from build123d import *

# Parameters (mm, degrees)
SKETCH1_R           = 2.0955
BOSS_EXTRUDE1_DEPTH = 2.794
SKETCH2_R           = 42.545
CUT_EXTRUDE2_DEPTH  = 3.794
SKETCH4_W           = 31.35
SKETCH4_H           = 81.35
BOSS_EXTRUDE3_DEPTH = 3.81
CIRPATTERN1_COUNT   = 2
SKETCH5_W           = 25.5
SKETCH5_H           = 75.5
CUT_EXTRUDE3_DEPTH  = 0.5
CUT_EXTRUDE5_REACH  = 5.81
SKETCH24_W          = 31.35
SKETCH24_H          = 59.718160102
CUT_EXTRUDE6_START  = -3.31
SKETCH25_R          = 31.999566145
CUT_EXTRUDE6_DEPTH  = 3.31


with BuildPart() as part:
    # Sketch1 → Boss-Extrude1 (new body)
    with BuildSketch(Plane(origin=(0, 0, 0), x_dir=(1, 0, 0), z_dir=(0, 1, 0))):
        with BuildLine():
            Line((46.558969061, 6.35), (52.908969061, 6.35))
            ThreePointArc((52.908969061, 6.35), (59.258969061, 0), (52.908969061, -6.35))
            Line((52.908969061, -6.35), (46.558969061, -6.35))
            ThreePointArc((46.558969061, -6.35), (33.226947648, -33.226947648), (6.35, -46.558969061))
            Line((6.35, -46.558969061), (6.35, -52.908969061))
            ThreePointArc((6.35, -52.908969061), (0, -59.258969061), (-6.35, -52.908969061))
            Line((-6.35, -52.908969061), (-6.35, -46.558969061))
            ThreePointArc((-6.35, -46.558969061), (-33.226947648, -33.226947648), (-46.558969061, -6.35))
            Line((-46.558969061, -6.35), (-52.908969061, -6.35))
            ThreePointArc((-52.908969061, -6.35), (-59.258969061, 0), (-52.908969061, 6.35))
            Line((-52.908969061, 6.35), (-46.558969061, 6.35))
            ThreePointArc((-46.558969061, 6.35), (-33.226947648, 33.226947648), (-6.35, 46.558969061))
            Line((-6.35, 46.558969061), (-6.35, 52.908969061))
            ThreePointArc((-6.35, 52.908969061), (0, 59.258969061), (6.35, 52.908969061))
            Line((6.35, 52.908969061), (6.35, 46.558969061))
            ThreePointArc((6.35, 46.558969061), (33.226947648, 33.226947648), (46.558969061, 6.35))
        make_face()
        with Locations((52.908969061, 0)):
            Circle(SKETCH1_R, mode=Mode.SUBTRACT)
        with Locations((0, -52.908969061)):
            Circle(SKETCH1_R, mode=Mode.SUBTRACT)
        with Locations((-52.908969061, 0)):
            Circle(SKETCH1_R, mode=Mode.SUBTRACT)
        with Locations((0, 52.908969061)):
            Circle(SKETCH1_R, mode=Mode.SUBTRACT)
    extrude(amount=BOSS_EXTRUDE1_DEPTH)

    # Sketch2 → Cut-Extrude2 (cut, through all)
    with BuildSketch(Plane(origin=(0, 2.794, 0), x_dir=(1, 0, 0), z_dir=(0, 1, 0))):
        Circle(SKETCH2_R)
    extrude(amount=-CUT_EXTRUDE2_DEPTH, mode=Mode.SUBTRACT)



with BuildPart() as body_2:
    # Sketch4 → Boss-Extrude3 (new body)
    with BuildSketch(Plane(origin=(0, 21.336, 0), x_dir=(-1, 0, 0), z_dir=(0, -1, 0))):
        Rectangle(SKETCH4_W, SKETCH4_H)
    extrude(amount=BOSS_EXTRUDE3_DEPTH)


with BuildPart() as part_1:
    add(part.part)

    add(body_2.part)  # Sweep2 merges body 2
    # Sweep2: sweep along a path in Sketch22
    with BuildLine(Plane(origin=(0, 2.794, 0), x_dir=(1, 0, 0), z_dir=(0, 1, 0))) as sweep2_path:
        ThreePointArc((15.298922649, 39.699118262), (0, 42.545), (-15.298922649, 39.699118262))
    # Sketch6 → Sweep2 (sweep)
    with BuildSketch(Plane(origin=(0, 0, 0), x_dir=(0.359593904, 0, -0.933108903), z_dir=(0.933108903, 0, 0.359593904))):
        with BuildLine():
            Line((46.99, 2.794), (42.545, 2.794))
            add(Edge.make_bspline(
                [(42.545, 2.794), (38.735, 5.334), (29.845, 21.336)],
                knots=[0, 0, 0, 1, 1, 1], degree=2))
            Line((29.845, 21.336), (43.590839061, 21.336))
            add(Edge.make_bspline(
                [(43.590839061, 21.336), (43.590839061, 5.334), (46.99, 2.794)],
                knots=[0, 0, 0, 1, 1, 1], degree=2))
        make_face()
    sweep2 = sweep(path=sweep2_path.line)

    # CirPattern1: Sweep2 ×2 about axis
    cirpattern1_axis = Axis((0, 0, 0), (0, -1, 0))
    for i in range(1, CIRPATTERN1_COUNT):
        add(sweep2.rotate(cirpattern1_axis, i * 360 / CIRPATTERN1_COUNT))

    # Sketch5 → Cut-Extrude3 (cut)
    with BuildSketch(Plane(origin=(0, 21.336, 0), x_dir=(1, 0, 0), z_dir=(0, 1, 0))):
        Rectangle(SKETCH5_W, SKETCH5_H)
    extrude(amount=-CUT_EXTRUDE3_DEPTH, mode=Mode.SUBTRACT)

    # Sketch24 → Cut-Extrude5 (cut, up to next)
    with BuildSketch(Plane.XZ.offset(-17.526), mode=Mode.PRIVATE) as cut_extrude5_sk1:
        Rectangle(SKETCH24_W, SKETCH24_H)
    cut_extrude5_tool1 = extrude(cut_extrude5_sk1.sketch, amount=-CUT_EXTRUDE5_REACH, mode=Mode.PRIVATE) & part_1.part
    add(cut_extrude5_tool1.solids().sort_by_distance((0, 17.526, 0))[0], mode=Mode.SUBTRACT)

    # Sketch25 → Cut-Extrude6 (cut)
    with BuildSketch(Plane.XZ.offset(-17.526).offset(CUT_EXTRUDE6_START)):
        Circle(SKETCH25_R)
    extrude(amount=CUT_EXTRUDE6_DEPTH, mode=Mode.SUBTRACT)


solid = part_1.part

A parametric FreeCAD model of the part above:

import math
import FreeCAD as App
import Part
import Sketcher
from FreeCAD import Vector
Q = App.Units.Quantity

doc = App.newDocument("Part")
body = doc.addObject("PartDesign::Body", "Body")

# Sketch on XZ plane
sketch1 = body.newObject("Sketcher::SketchObject", "Sketch")
sketch1.AttachmentSupport = (doc.getObject("XZ_Plane"), [""])
sketch1.MapMode = "FlatFace"
sketch1.addGeometry([
    Part.LineSegment(Vector(52.908969, -6.35, 0), Vector(46.558969, -6.35, 0)),  # 0
    Part.ArcOfCircle(Part.Circle(Vector(0, 0, 0), Vector(0, 0, 1), 46.99), math.radians(-82.233566), math.radians(-7.766434)),  # 1
    Part.LineSegment(Vector(6.35, -46.558969, 0), Vector(6.35, -52.908969, 0)),  # 2
    Part.ArcOfCircle(Part.Circle(Vector(0, -52.908969, 0), Vector(0, 0, 1), 6.35), math.radians(180), math.radians(360)),  # 3
    Part.LineSegment(Vector(-6.35, -52.908969, 0), Vector(-6.35, -46.558969, 0)),  # 4
    Part.ArcOfCircle(Part.Circle(Vector(0, 0, 0), Vector(0, 0, 1), 46.99), math.radians(-172.233566), math.radians(-97.766434)),  # 5
    Part.LineSegment(Vector(-46.558969, -6.35, 0), Vector(-52.908969, -6.35, 0)),  # 6
    Part.ArcOfCircle(Part.Circle(Vector(-52.908969, 0, 0), Vector(0, 0, 1), 6.35), math.radians(90), math.radians(270)),  # 7
    Part.LineSegment(Vector(-52.908969, 6.35, 0), Vector(-46.558969, 6.35, 0)),  # 8
    Part.ArcOfCircle(Part.Circle(Vector(0, 0, 0), Vector(0, 0, 1), 46.99), math.radians(97.766434), math.radians(172.233566)),  # 9
    Part.LineSegment(Vector(-6.35, 46.558969, 0), Vector(-6.35, 52.908969, 0)),  # 10
    Part.ArcOfCircle(Part.Circle(Vector(0, 52.908969, 0), Vector(0, 0, 1), 6.35), math.radians(0), math.radians(180)),  # 11
    Part.LineSegment(Vector(6.35, 52.908969, 0), Vector(6.35, 46.558969, 0)),  # 12
    Part.ArcOfCircle(Part.Circle(Vector(0, 0, 0), Vector(0, 0, 1), 46.99), math.radians(7.766434), math.radians(82.233566)),  # 13
    Part.LineSegment(Vector(46.558969, 6.35, 0), Vector(52.908969, 6.35, 0)),  # 14
    Part.ArcOfCircle(Part.Circle(Vector(52.908969, 0, 0), Vector(0, 0, 1), 6.35), math.radians(-90), math.radians(90)),  # 15
    Part.Circle(Vector(0, 52.908969, 0), Vector(0, 0, 1), 2.0955),  # 16
    Part.Circle(Vector(52.908969, 0, 0), Vector(0, 0, 1), 2.0955),  # 17
    Part.Circle(Vector(-52.908969, 0, 0), Vector(0, 0, 1), 2.0955),  # 18
    Part.Circle(Vector(0, -52.908969, 0), Vector(0, 0, 1), 2.0955),  # 19
], False)
sketch1.addConstraint([
    Sketcher.Constraint("Coincident", 0, 2, 1, 2),
    Sketcher.Constraint("Coincident", 1, 1, 2, 1),
    Sketcher.Constraint("Tangent", 2, 2, 3, 2),
    Sketcher.Constraint("Tangent", 3, 1, 4, 1),
    Sketcher.Constraint("Coincident", 4, 2, 5, 2),
    Sketcher.Constraint("Coincident", 5, 1, 6, 1),
    Sketcher.Constraint("Tangent", 6, 2, 7, 2),
    Sketcher.Constraint("Tangent", 7, 1, 8, 1),
    Sketcher.Constraint("Coincident", 8, 2, 9, 2),
    Sketcher.Constraint("Coincident", 9, 1, 10, 1),
    Sketcher.Constraint("Tangent", 10, 2, 11, 2),
    Sketcher.Constraint("Tangent", 11, 1, 12, 1),
    Sketcher.Constraint("Coincident", 12, 2, 13, 2),
    Sketcher.Constraint("Coincident", 13, 1, 14, 1),
    Sketcher.Constraint("Tangent", 14, 2, 15, 2),
    Sketcher.Constraint("Tangent", 15, 1, 0, 1),
    Sketcher.Constraint("Horizontal", 0),
    Sketcher.Constraint("Vertical", 2),
    Sketcher.Constraint("Vertical", 4),
    Sketcher.Constraint("Horizontal", 6),
    Sketcher.Constraint("Horizontal", 8),
    Sketcher.Constraint("Vertical", 10),
    Sketcher.Constraint("Vertical", 12),
    Sketcher.Constraint("Horizontal", 14),
    Sketcher.Constraint("Coincident", 1, 3, -1, 1),
    Sketcher.Constraint("Coincident", 5, 3, -1, 1),
    Sketcher.Constraint("Coincident", 9, 3, -1, 1),
    Sketcher.Constraint("Coincident", 13, 3, -1, 1),
    Sketcher.Constraint("Coincident", 16, 3, 11, 3),
    Sketcher.Constraint("Coincident", 17, 3, 15, 3),
    Sketcher.Constraint("Coincident", 18, 3, 7, 3),
    Sketcher.Constraint("Coincident", 19, 3, 3, 3),
    Sketcher.Constraint("Equal", 1, 5),
    Sketcher.Constraint("Equal", 3, 7),
    Sketcher.Constraint("Equal", 5, 9),
    Sketcher.Constraint("Equal", 7, 11),
    Sketcher.Constraint("Equal", 9, 13),
    Sketcher.Constraint("Equal", 11, 15),
    Sketcher.Constraint("Equal", 16, 17),
    Sketcher.Constraint("Equal", 17, 18),
    Sketcher.Constraint("Equal", 18, 19),
    Sketcher.Constraint("Symmetric", 3, 3, 11, 3, -1, 1),
    Sketcher.Constraint("Symmetric", 7, 3, 15, 3, -1, 1),
    Sketcher.Constraint("PointOnObject", 3, 3, -2),
    Sketcher.Constraint("PointOnObject", 7, 3, -1),
    Sketcher.Constraint("Equal", 14, 2),
    Sketcher.Constraint("Radius", 1, Q("1.85 in")),
    Sketcher.Constraint("Radius", 3, Q("0.25 in")),
    Sketcher.Constraint("Diameter", 16, Q("0.165 in")),
    Sketcher.Constraint("DistanceX", 0, 2, 0, 1, Q("0.25 in")),
])
pad1 = body.newObject("PartDesign::Pad", "Pad")
pad1.Profile = sketch1
pad1.Length = Q("0.11 in")
pad1.Reversed = True

# Sketch on XZ plane
sketch2 = body.newObject("Sketcher::SketchObject", "Sketch001")
sketch2.AttachmentSupport = (doc.getObject("XZ_Plane"), [""])
sketch2.MapMode = "FlatFace"
sketch2.AttachmentOffset = App.Placement(Vector(0, 0, -0.11 * 25.4), App.Rotation())
sketch2.addGeometry(Part.Circle(Vector(0, 0, 0), Vector(0, 0, 1), 42.545), False)
sketch2.addConstraint([
    Sketcher.Constraint("Coincident", 0, 3, -1, 1),
    Sketcher.Constraint("Diameter", 0, Q("3.35 in")),
])
pocket1 = body.newObject("PartDesign::Pocket", "Pocket")
pocket1.Profile = sketch2
pocket1.Type = "ThroughAll"
pocket1.Reversed = True
body2 = doc.addObject("PartDesign::Body", "Body001")

# Sketch on XZ plane
sketch3 = body2.newObject("Sketcher::SketchObject", "Sketch002")
sketch3.AttachmentSupport = (doc.getObject("XZ_Plane001"), [""])
sketch3.MapMode = "FlatFace"
sketch3.AttachmentOffset = App.Placement(Vector(0, 0, -0.84 * 25.4), App.Rotation())
sketch3.addGeometry([
    Part.LineSegment(Vector(15.675, -40.675, 0), Vector(15.675, 40.675, 0)),
    Part.LineSegment(Vector(15.675, 40.675, 0), Vector(-15.675, 40.675, 0)),
    Part.LineSegment(Vector(-15.675, 40.675, 0), Vector(-15.675, -40.675, 0)),
    Part.LineSegment(Vector(-15.675, -40.675, 0), Vector(15.675, -40.675, 0)),
], False)
sketch3.addConstraint([
    Sketcher.Constraint("Coincident", 0, 2, 1, 1),
    Sketcher.Constraint("Coincident", 1, 2, 2, 1),
    Sketcher.Constraint("Coincident", 2, 2, 3, 1),
    Sketcher.Constraint("Coincident", 3, 2, 0, 1),
    Sketcher.Constraint("Vertical", 0),
    Sketcher.Constraint("Horizontal", 1),
    Sketcher.Constraint("Vertical", 2),
    Sketcher.Constraint("Horizontal", 3),
    Sketcher.Constraint("Symmetric", 0, 2, 2, 2, -1, 1),
    Sketcher.Constraint("DistanceX", 1, 2, 1, 1, Q("31.35 mm")),
    Sketcher.Constraint("DistanceY", 0, 1, 0, 2, Q("81.35 mm")),
])
pad2 = body2.newObject("PartDesign::Pad", "Pad001")
pad2.Profile = sketch3
pad2.Length = Q("0.15 in")
body.AllowCompound = True
doc.recompute()

boolean = body.newObject("PartDesign::Boolean", "Boolean")
boolean.Type = "Fuse"
boolean.addObjects([body2])

# Sketch on an angled plane
sketch4 = body.newObject("Sketcher::SketchObject", "Sketch003")
sketch4.Placement = App.Placement(Vector(0, 0, 0), App.Rotation(Vector(0.359593904, 0, -0.933108903), Vector(0, 1.000000001, 0), Vector(0.933108903, 0, 0.359593904), "ZXY"))
sketch4.addGeometry([
    Part.LineSegment(Vector(42.545, 2.794, 0), Vector(46.99, 2.794, 0)),
    Part.BSplineCurve([Vector(43.590839, 21.336, 0), Vector(43.590839, 5.334, 0), Vector(46.99, 2.794, 0)], [3, 3], [0, 1], False, 2, [1, 1, 1], False),
    Part.LineSegment(Vector(43.590839, 21.336, 0), Vector(29.845, 21.336, 0)),
    Part.BSplineCurve([Vector(42.545, 2.794, 0), Vector(38.735, 5.334, 0), Vector(29.845, 21.336, 0)], [3, 3], [0, 1], False, 2, [1, 1, 1], False),
], False)
sketch4.addConstraint([
    Sketcher.Constraint("Block", 1),
    Sketcher.Constraint("Block", 3),
    Sketcher.Constraint("Coincident", 0, 2, 1, 2),
    Sketcher.Constraint("Coincident", 1, 1, 2, 1),
    Sketcher.Constraint("Coincident", 2, 2, 3, 2),
    Sketcher.Constraint("Coincident", 3, 1, 0, 1),
])

# Sketch on XZ plane
sketch5 = body.newObject("Sketcher::SketchObject", "Sketch004")
sketch5.AttachmentSupport = (doc.getObject("XZ_Plane"), [""])
sketch5.MapMode = "FlatFace"
sketch5.AttachmentOffset = App.Placement(Vector(0, 0, -0.11 * 25.4), App.Rotation())
sketch5.addGeometry(Part.ArcOfCircle(Part.Circle(Vector(0, 0, 0), Vector(0, 0, 1), 42.545), math.radians(-111.075258), math.radians(-68.924742)), False)
sketch5.addConstraint([
    Sketcher.Constraint("Coincident", 0, 3, -1, 1),
    Sketcher.Constraint("Radius", 0, Q("1.675 in")),
    Sketcher.Constraint("DistanceY", 0, 1, -1, 1, Q("39.699118 mm")),
    Sketcher.Constraint("DistanceY", 0, 2, -1, 1, Q("39.699118 mm")),
])
doc.recompute()

additivepipe = body.newObject("PartDesign::AdditivePipe", "AdditivePipe")
additivepipe.Profile = sketch4
additivepipe.Spine = (sketch5, ["Edge1"])
doc.recompute()

polarpattern = body.newObject("PartDesign::PolarPattern", "PolarPattern")
polarpattern.Originals = [additivepipe]
polarpattern.Axis = (doc.getObject("Y_Axis"), [""])
polarpattern.Angle = 360
polarpattern.Occurrences = 2
body.Tip = polarpattern

# Sketch on XZ plane
sketch6 = body.newObject("Sketcher::SketchObject", "Sketch005")
sketch6.AttachmentSupport = (doc.getObject("XZ_Plane"), [""])
sketch6.MapMode = "FlatFace"
sketch6.AttachmentOffset = App.Placement(Vector(0, 0, -0.84 * 25.4), App.Rotation())
sketch6.addGeometry([
    Part.LineSegment(Vector(-12.75, -37.75, 0), Vector(-12.75, 37.75, 0)),
    Part.LineSegment(Vector(-12.75, 37.75, 0), Vector(12.75, 37.75, 0)),
    Part.LineSegment(Vector(12.75, 37.75, 0), Vector(12.75, -37.75, 0)),
    Part.LineSegment(Vector(12.75, -37.75, 0), Vector(-12.75, -37.75, 0)),
], False)
sketch6.addConstraint([
    Sketcher.Constraint("Coincident", 0, 2, 1, 1),
    Sketcher.Constraint("Coincident", 1, 2, 2, 1),
    Sketcher.Constraint("Coincident", 2, 2, 3, 1),
    Sketcher.Constraint("Coincident", 3, 2, 0, 1),
    Sketcher.Constraint("Vertical", 0),
    Sketcher.Constraint("Horizontal", 1),
    Sketcher.Constraint("Vertical", 2),
    Sketcher.Constraint("Horizontal", 3),
    Sketcher.Constraint("Symmetric", 0, 2, 2, 2, -1, 1),
    Sketcher.Constraint("DistanceX", 1, 1, 1, 2, Q("25.5 mm")),
    Sketcher.Constraint("DistanceY", 0, 1, 0, 2, Q("75.5 mm")),
])
pocket2 = body.newObject("PartDesign::Pocket", "Pocket001")
pocket2.Profile = sketch6
pocket2.Length = 0.5
pocket2.Reversed = True

# Sketch on XZ plane
sketch7 = body.newObject("Sketcher::SketchObject", "Sketch006")
sketch7.AttachmentSupport = (doc.getObject("XZ_Plane"), [""])
sketch7.MapMode = "FlatFace"
sketch7.AttachmentOffset = App.Placement(Vector(0, 0, -0.69 * 25.4), App.Rotation())
sketch7.addGeometry([
    Part.LineSegment(Vector(-15.675, 29.85908, 0), Vector(-15.675, -29.85908, 0)),
    Part.LineSegment(Vector(-15.675, -29.85908, 0), Vector(15.675, -29.85908, 0)),
    Part.LineSegment(Vector(15.675, -29.85908, 0), Vector(15.675, 29.85908, 0)),
    Part.LineSegment(Vector(15.675, 29.85908, 0), Vector(-15.675, 29.85908, 0)),
], False)
sketch7.addConstraint([
    Sketcher.Constraint("Coincident", 0, 2, 1, 1),
    Sketcher.Constraint("Coincident", 1, 2, 2, 1),
    Sketcher.Constraint("Coincident", 2, 2, 3, 1),
    Sketcher.Constraint("Coincident", 3, 2, 0, 1),
    Sketcher.Constraint("Vertical", 0),
    Sketcher.Constraint("Horizontal", 1),
    Sketcher.Constraint("Vertical", 2),
    Sketcher.Constraint("Horizontal", 3),
    Sketcher.Constraint("Symmetric", 0, 2, 2, 2, -1, 1),
    Sketcher.Constraint("DistanceX", 1, 1, 1, 2, Q("31.35 mm")),
    Sketcher.Constraint("DistanceY", 0, 2, 0, 1, Q("59.71816 mm")),
])
pocket3 = body.newObject("PartDesign::Pocket", "Pocket002")
pocket3.Profile = sketch7
pocket3.Length = Q("0.15 in")

# Sketch on XZ plane
sketch8 = body.newObject("Sketcher::SketchObject", "Sketch007")
sketch8.AttachmentSupport = (doc.getObject("XZ_Plane"), [""])
sketch8.MapMode = "FlatFace"
sketch8.AttachmentOffset = App.Placement(Vector(0, 0, -20.836), App.Rotation())
sketch8.addGeometry(Part.Circle(Vector(0, 0, 0), Vector(0, 0, 1), 31.999566), False)
sketch8.addConstraint([
    Sketcher.Constraint("Coincident", 0, 3, -1, 1),
    Sketcher.Constraint("Diameter", 0, Q("63.999132 mm")),
])
pocket4 = body.newObject("PartDesign::Pocket", "Pocket003")
pocket4.Profile = sketch8
pocket4.Length = 3.31
pocket4.Reversed = True

doc.recompute()
